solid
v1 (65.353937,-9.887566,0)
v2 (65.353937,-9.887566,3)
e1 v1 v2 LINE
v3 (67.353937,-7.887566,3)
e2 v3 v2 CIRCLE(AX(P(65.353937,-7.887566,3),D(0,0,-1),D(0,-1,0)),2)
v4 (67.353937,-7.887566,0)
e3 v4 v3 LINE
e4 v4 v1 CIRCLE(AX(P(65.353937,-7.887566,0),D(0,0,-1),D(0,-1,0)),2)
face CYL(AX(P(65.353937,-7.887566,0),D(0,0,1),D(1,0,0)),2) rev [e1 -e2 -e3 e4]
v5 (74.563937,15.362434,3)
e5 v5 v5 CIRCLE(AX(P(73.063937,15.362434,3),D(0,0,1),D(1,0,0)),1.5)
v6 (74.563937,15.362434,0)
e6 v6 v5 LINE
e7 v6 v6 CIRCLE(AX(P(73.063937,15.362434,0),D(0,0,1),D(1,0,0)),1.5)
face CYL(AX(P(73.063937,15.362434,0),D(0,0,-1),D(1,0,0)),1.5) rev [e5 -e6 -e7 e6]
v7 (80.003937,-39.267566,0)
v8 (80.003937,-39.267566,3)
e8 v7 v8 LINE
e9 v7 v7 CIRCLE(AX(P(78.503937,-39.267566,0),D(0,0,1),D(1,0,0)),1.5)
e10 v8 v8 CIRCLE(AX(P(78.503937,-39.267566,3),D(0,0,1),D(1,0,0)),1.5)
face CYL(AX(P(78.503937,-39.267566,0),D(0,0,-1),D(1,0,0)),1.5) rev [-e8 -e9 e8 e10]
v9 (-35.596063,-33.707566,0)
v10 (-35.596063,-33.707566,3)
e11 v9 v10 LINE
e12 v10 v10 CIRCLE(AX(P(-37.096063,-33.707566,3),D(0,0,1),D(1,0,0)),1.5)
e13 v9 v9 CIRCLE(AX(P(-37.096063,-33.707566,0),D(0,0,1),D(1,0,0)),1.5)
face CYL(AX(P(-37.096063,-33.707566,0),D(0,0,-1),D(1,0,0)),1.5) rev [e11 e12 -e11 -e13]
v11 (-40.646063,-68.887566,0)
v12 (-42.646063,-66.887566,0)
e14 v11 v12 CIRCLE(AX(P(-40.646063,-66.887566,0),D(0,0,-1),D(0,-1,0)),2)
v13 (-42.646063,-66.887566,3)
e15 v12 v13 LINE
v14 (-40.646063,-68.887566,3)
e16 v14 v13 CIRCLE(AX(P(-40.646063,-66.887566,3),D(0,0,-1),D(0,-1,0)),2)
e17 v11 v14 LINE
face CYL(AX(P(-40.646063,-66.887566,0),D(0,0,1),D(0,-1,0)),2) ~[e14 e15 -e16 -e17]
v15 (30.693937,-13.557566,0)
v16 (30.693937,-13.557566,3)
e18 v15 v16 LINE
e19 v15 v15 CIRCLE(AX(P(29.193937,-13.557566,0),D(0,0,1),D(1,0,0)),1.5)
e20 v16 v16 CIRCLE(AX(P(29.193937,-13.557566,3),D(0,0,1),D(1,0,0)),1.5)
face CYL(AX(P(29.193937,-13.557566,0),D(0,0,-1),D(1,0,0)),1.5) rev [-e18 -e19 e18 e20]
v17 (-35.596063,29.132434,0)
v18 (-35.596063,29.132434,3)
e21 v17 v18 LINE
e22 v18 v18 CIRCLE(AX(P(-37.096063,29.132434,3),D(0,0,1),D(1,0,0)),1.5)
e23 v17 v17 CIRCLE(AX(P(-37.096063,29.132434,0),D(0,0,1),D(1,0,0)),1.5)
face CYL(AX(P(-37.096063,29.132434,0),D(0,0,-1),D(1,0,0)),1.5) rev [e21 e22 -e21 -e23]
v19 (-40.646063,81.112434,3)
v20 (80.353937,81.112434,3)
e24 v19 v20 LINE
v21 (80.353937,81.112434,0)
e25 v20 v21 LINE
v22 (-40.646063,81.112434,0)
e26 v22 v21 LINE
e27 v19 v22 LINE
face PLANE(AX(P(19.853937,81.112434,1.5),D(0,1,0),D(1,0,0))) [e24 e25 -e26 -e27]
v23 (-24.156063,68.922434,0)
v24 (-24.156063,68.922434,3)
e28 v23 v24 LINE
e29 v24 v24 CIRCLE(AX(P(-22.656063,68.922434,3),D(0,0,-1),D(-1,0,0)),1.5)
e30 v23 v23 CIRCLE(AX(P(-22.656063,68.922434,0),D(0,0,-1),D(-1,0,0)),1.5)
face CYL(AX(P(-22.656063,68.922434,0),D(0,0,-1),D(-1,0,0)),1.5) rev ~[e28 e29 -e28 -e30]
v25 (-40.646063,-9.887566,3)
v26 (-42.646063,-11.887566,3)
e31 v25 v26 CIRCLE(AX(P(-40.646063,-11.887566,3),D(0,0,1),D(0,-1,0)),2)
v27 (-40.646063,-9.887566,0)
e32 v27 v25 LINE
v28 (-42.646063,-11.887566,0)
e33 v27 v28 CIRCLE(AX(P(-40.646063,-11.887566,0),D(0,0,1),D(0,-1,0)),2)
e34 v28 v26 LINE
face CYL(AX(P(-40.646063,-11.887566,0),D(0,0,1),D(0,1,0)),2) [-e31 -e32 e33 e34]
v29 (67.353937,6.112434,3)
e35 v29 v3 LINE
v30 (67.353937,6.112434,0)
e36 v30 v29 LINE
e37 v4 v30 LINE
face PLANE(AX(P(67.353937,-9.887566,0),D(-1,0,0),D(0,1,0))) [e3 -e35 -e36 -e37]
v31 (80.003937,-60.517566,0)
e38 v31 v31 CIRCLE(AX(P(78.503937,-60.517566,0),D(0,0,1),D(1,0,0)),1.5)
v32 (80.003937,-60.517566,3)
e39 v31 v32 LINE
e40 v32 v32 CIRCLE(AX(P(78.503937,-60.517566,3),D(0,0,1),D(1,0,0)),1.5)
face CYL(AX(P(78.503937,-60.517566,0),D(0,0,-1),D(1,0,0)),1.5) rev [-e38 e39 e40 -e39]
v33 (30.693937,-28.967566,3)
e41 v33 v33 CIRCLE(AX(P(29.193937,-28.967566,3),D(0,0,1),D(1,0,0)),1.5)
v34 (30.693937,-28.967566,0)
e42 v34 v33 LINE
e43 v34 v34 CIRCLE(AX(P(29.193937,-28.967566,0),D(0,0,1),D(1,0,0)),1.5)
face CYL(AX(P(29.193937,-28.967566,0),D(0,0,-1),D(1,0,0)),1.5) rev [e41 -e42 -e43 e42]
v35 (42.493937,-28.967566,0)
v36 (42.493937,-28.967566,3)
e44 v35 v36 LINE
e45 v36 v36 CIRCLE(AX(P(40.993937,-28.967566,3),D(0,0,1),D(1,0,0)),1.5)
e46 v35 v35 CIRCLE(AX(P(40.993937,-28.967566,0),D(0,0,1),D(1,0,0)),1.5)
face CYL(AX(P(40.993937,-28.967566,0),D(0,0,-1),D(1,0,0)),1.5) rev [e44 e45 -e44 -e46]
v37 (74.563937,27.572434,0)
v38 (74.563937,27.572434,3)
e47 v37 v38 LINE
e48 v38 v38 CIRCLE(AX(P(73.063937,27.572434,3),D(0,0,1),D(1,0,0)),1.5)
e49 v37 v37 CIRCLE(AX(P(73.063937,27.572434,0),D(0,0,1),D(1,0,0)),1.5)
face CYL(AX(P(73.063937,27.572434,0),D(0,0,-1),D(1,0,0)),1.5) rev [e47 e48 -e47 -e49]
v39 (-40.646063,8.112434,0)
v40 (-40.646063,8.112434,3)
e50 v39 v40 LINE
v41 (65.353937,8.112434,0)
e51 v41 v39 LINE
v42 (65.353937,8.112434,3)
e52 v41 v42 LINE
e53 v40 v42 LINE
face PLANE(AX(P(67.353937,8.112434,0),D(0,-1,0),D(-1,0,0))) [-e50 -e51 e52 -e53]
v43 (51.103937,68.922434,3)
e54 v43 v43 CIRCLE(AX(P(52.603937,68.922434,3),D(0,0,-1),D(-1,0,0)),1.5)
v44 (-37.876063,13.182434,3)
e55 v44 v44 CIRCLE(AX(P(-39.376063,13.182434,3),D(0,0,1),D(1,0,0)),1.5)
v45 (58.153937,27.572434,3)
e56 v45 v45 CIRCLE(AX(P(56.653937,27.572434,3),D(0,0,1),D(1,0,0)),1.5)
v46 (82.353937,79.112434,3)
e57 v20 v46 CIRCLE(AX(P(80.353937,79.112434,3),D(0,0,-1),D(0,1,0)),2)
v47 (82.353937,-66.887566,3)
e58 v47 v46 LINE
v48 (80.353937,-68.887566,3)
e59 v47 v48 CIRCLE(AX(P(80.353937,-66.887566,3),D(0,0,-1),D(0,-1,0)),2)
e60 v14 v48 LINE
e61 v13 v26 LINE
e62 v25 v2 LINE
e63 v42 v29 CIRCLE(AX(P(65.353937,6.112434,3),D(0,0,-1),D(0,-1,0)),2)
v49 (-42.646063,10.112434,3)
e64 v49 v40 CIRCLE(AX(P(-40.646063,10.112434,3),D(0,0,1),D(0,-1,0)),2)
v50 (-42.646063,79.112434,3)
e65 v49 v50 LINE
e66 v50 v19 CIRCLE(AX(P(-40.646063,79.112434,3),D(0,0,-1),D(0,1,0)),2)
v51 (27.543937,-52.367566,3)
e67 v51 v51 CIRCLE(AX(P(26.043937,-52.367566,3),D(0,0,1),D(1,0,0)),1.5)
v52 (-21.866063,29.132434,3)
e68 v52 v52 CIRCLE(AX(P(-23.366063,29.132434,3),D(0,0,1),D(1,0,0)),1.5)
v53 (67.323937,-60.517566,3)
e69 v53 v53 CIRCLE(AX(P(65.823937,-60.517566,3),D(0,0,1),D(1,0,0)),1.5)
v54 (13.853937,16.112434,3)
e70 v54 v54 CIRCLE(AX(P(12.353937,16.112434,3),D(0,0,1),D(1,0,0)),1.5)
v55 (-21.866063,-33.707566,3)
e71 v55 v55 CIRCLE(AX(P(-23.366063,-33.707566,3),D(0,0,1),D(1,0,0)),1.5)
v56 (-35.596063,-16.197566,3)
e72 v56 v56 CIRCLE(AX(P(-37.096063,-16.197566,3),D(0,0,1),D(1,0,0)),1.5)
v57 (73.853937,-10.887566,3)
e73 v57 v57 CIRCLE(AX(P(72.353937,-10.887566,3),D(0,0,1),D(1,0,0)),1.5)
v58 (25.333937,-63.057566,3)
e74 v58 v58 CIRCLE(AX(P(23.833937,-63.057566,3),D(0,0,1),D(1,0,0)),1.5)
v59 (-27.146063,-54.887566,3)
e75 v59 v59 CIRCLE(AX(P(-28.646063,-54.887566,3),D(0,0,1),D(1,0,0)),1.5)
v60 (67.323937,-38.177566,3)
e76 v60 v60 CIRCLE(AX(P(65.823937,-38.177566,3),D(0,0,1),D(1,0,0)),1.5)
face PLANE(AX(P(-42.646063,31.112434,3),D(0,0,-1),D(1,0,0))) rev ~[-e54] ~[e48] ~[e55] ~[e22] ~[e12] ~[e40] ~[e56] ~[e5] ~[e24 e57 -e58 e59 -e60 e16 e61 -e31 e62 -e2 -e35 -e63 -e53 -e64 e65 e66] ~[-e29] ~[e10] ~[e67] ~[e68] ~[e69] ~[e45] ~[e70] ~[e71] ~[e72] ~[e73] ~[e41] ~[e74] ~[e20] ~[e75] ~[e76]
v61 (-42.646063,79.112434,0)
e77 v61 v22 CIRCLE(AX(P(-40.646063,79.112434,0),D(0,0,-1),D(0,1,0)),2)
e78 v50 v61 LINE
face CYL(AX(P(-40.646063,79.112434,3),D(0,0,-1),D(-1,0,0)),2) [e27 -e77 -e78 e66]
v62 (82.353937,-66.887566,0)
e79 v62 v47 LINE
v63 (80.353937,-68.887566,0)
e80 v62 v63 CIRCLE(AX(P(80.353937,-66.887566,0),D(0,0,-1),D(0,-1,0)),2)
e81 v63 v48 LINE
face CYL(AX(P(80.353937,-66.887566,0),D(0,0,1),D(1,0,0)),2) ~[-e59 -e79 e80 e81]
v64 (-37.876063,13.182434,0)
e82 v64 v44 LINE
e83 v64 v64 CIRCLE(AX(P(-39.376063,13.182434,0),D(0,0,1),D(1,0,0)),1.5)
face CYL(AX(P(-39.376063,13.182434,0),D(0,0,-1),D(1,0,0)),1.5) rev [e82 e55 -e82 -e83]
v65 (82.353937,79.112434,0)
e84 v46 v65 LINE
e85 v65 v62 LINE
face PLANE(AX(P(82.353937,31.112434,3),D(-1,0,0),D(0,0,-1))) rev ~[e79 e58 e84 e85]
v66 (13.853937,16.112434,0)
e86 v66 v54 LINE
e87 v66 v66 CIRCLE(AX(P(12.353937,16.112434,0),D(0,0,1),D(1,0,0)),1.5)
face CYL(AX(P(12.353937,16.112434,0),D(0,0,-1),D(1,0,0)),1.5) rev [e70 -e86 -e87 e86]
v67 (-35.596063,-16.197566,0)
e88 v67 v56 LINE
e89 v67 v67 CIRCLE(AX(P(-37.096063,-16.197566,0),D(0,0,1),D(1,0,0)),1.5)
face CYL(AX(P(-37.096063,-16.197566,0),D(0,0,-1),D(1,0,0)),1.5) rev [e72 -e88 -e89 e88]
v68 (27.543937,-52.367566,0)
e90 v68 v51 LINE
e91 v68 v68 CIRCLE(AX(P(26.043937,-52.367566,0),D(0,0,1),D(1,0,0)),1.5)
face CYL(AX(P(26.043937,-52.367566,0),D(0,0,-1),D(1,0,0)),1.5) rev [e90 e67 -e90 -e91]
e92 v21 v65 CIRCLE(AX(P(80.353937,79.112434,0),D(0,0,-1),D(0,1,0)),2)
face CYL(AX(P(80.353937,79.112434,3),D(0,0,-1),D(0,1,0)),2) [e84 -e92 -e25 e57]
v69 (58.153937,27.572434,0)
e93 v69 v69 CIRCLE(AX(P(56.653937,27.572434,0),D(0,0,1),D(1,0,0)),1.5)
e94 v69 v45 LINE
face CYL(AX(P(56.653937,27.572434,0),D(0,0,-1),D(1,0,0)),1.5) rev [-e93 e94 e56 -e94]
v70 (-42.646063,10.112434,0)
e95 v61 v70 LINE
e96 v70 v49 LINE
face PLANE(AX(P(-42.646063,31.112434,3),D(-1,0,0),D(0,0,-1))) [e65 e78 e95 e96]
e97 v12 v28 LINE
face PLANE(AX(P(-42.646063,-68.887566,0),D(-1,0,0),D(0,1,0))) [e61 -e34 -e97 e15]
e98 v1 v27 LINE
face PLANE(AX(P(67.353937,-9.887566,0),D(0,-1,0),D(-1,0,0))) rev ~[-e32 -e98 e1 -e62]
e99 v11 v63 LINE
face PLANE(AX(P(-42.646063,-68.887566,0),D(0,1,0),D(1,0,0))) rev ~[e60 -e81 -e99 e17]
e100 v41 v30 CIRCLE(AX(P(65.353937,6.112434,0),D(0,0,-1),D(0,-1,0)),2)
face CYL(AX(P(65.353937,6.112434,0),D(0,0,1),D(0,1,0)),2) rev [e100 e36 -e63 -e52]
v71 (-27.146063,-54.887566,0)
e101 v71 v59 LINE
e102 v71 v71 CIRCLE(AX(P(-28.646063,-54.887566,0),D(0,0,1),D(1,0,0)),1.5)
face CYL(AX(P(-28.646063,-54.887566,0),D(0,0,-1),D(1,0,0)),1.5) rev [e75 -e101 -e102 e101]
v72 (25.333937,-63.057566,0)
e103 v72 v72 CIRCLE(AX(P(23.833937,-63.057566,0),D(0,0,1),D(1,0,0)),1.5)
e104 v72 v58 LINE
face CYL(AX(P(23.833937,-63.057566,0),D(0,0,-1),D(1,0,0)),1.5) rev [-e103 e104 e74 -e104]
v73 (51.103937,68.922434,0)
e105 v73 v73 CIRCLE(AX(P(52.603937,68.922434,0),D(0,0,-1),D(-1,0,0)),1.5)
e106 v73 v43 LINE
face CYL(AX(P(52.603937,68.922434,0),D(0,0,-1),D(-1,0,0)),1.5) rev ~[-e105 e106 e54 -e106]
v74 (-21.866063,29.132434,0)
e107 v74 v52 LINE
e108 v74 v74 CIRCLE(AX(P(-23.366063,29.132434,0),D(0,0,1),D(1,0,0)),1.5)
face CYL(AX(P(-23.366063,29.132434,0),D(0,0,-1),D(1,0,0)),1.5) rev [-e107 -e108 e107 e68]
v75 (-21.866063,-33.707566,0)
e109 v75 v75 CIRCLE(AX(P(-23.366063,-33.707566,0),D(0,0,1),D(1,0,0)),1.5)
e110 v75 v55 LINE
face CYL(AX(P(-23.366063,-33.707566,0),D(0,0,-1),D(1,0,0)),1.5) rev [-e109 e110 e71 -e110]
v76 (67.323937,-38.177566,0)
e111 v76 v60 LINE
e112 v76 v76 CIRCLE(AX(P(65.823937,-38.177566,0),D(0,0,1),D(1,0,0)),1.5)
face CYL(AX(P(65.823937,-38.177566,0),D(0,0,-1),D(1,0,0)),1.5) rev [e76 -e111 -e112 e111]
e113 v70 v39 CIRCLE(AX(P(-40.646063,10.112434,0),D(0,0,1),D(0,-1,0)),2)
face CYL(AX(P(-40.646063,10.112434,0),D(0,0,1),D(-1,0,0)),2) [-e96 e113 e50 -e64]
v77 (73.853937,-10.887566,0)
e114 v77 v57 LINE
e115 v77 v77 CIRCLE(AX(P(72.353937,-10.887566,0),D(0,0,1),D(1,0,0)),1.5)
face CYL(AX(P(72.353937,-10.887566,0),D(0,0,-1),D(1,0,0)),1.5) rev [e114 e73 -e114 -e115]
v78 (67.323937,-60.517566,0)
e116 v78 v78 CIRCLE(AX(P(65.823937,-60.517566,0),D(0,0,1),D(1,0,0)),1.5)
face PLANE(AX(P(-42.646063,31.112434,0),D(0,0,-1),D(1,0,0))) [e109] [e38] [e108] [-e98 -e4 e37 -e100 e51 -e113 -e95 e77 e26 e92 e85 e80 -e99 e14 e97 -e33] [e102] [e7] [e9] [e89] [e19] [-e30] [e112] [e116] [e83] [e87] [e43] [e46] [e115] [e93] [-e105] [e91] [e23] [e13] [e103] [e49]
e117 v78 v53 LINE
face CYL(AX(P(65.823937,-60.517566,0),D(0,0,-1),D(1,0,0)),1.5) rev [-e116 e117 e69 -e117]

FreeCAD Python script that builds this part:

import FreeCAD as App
import Part
import Sketcher


def edges_at(feature, points):
    """Names of the edges that pass closest to the given points."""
    edges = feature.Shape.Edges
    near = lambda p: min(range(len(edges)), key=lambda i: edges[i].distToShape(Part.Vertex(*p))[0])
    return sorted({f"Edge{near(p) + 1}" for p in points})


def add_polygon(sketch, points):
    """Adds a closed chain of lines whose ends are joined by coincident constraints."""
    first, n = sketch.GeometryCount, len(points)
    for a, b in zip(points, points[1:] + points[:1]):
        sketch.addGeometry(Part.LineSegment(App.Vector(*a, 0), App.Vector(*b, 0)), False)
    for i in range(n):
        sketch.addConstraint(Sketcher.Constraint("Coincident", first + i, 2, first + (i + 1) % n, 1))

doc = App.newDocument("Part")
body = doc.addObject("PartDesign::Body", "Body")

# Sketch on XY plane
sketch1 = body.newObject("Sketcher::SketchObject", "Sketch")
sketch1.AttachmentSupport = (doc.getObject("XY_Plane"), [""])
sketch1.MapMode = "FlatFace"
add_polygon(sketch1, [(-42.6, 31.1), (-42.6, -68.9), (82.4, -68.9), (82.4, 31.1)])  # lines 0-3
sketch1.addGeometry(Part.Circle(App.Vector(-28.6, -54.9, 0), App.Vector(0, 0, 1), 1.5), False)  # 4
sketch1.addGeometry(Part.Circle(App.Vector(-37.1, -33.7, 0), App.Vector(0, 0, 1), 1.5), False)  # 5
sketch1.addGeometry(Part.Circle(App.Vector(-23.4, -33.7, 0), App.Vector(0, 0, 1), 1.5), False)  # 6
sketch1.addGeometry(Part.Circle(App.Vector(23.8, -63.1, 0), App.Vector(0, 0, 1), 1.5), False)  # 7
sketch1.addGeometry(Part.Circle(App.Vector(26, -52.4, 0), App.Vector(0, 0, 1), 1.5), False)  # 8
sketch1.addGeometry(Part.Circle(App.Vector(65.8, -60.5, 0), App.Vector(0, 0, 1), 1.5), False)  # 9
sketch1.addGeometry(Part.Circle(App.Vector(78.5, -60.5, 0), App.Vector(0, 0, 1), 1.5), False)  # 10
sketch1.addGeometry(Part.Circle(App.Vector(29.2, -29, 0), App.Vector(0, 0, 1), 1.5), False)  # 11
sketch1.addGeometry(Part.Circle(App.Vector(41, -29, 0), App.Vector(0, 0, 1), 1.5), False)  # 12
sketch1.addGeometry(Part.Circle(App.Vector(65.8, -38.2, 0), App.Vector(0, 0, 1), 1.5), False)  # 13
sketch1.addGeometry(Part.Circle(App.Vector(78.5, -39.3, 0), App.Vector(0, 0, 1), 1.5), False)  # 14
sketch1.addGeometry(Part.Circle(App.Vector(-37.1, -16.2, 0), App.Vector(0, 0, 1), 1.5), False)  # 15
sketch1.addGeometry(Part.Circle(App.Vector(-39.4, 13.2, 0), App.Vector(0, 0, 1), 1.5), False)  # 16
sketch1.addGeometry(Part.Circle(App.Vector(-37.1, 29.1, 0), App.Vector(0, 0, 1), 1.5), False)  # 17
sketch1.addGeometry(Part.Circle(App.Vector(-23.4, 29.1, 0), App.Vector(0, 0, 1), 1.5), False)  # 18
sketch1.addGeometry(Part.Circle(App.Vector(12.4, 16.1, 0), App.Vector(0, 0, 1), 1.5), False)  # 19
sketch1.addGeometry(Part.Circle(App.Vector(29.2, -13.6, 0), App.Vector(0, 0, 1), 1.5), False)  # 20
sketch1.addGeometry(Part.Circle(App.Vector(72.4, -10.9, 0), App.Vector(0, 0, 1), 1.5), False)  # 21
sketch1.addGeometry(Part.Circle(App.Vector(73.1, 15.4, 0), App.Vector(0, 0, 1), 1.5), False)  # 22
sketch1.addGeometry(Part.Circle(App.Vector(56.7, 27.6, 0), App.Vector(0, 0, 1), 1.5), False)  # 23
sketch1.addGeometry(Part.Circle(App.Vector(73.1, 27.6, 0), App.Vector(0, 0, 1), 1.5), False)  # 24
sketch1.addConstraint(Sketcher.Constraint("Vertical", 0))
sketch1.addConstraint(Sketcher.Constraint("Horizontal", 1))
sketch1.addConstraint(Sketcher.Constraint("Vertical", 2))
sketch1.addConstraint(Sketcher.Constraint("Horizontal", 3))
sketch1.addConstraint(Sketcher.Constraint("Equal", 4, 5))
sketch1.addConstraint(Sketcher.Constraint("Equal", 5, 6))
sketch1.addConstraint(Sketcher.Constraint("Equal", 6, 7))
sketch1.addConstraint(Sketcher.Constraint("Equal", 7, 8))
sketch1.addConstraint(Sketcher.Constraint("Equal", 8, 9))
sketch1.addConstraint(Sketcher.Constraint("Equal", 9, 10))
sketch1.addConstraint(Sketcher.Constraint("Equal", 10, 11))
sketch1.addConstraint(Sketcher.Constraint("Equal", 11, 12))
sketch1.addConstraint(Sketcher.Constraint("Equal", 12, 13))
sketch1.addConstraint(Sketcher.Constraint("Equal", 13, 14))
sketch1.addConstraint(Sketcher.Constraint("Equal", 14, 15))
sketch1.addConstraint(Sketcher.Constraint("Equal", 15, 16))
sketch1.addConstraint(Sketcher.Constraint("Equal", 16, 17))
sketch1.addConstraint(Sketcher.Constraint("Equal", 17, 18))
sketch1.addConstraint(Sketcher.Constraint("Equal", 18, 19))
sketch1.addConstraint(Sketcher.Constraint("Equal", 19, 20))
sketch1.addConstraint(Sketcher.Constraint("Equal", 20, 21))
sketch1.addConstraint(Sketcher.Constraint("Equal", 21, 22))
sketch1.addConstraint(Sketcher.Constraint("Equal", 22, 23))
sketch1.addConstraint(Sketcher.Constraint("Equal", 23, 24))
sketch1.addConstraint(Sketcher.Constraint("Horizontal", 5, 3, 6, 3))
sketch1.addConstraint(Sketcher.Constraint("Horizontal", 9, 3, 10, 3))
sketch1.addConstraint(Sketcher.Constraint("Horizontal", 11, 3, 12, 3))
sketch1.addConstraint(Sketcher.Constraint("Horizontal", 17, 3, 18, 3))
sketch1.addConstraint(Sketcher.Constraint("Horizontal", 23, 3, 24, 3))
sketch1.addConstraint(Sketcher.Constraint("Vertical", 9, 3, 13, 3))
sketch1.addConstraint(Sketcher.Constraint("Vertical", 10, 3, 14, 3))
sketch1.addConstraint(Sketcher.Constraint("Vertical", 5, 3, 15, 3))
sketch1.addConstraint(Sketcher.Constraint("Vertical", 15, 3, 17, 3))
sketch1.addConstraint(Sketcher.Constraint("Vertical", 6, 3, 18, 3))
sketch1.addConstraint(Sketcher.Constraint("Vertical", 11, 3, 20, 3))
sketch1.addConstraint(Sketcher.Constraint("Vertical", 22, 3, 24, 3))
sketch1.addConstraint(Sketcher.Constraint("Diameter", 4, 3.0))
sketch1.addConstraint(Sketcher.Constraint("DistanceX", 1, 1, 1, 2, 125.0))
sketch1.addConstraint(Sketcher.Constraint("DistanceY", 0, 2, 0, 1, 100.0))
sketch1.addConstraint(Sketcher.Constraint("DistanceX", 0, 2, 4, 3, 14.0))
sketch1.addConstraint(Sketcher.Constraint("DistanceY", 0, 2, 4, 3, 14.0))
sketch1.addConstraint(Sketcher.Constraint("DistanceX", 21, 3, 2, 2, 10.0))
sketch1.addConstraint(Sketcher.Constraint("DistanceY", 21, 3, 2, 2, 42.0))
sketch1.addConstraint(Sketcher.Constraint("DistanceX", 3, 2, 19, 3, 55.0))
sketch1.addConstraint(Sketcher.Constraint("DistanceY", 19, 3, 3, 2, 15.0))
sketch1.addConstraint(Sketcher.Constraint("DistanceX", 6, 3, 7, 3, 47.2))
sketch1.addConstraint(Sketcher.Constraint("DistanceY", 8, 3, 11, 3, 23.4))
sketch1.addConstraint(Sketcher.Constraint("DistanceX", 11, 3, 12, 3, 11.8))
sketch1.addConstraint(Sketcher.Constraint("DistanceY", 14, 3, 12, 3, 10.3))
sketch1.addConstraint(Sketcher.Constraint("DistanceX", 23, 3, 21, 3, 15.7))
sketch1.addConstraint(Sketcher.Constraint("DistanceX", 5, 3, 4, 3, 8.45))
sketch1.addConstraint(Sketcher.Constraint("DistanceY", 4, 3, 5, 3, 21.18))
sketch1.addConstraint(Sketcher.Constraint("DistanceX", 5, 3, 6, 3, 13.73))
sketch1.addConstraint(Sketcher.Constraint("DistanceY", 7, 3, 4, 3, 8.17))
sketch1.addConstraint(Sketcher.Constraint("DistanceX", 7, 3, 8, 3, 2.21))
sketch1.addConstraint(Sketcher.Constraint("DistanceY", 7, 3, 8, 3, 10.69))
sketch1.addConstraint(Sketcher.Constraint("DistanceX", 8, 3, 9, 3, 39.78))
sketch1.addConstraint(Sketcher.Constraint("DistanceY", 9, 3, 8, 3, 8.15))
sketch1.addConstraint(Sketcher.Constraint("DistanceX", 9, 3, 10, 3, 12.68))
sketch1.addConstraint(Sketcher.Constraint("DistanceX", 8, 3, 11, 3, 3.15))
sketch1.addConstraint(Sketcher.Constraint("DistanceY", 9, 3, 13, 3, 22.34))
sketch1.addConstraint(Sketcher.Constraint("DistanceY", 5, 3, 15, 3, 17.51))
sketch1.addConstraint(Sketcher.Constraint("DistanceX", 16, 3, 15, 3, 2.28))
sketch1.addConstraint(Sketcher.Constraint("DistanceY", 15, 3, 16, 3, 29.38))
sketch1.addConstraint(Sketcher.Constraint("DistanceY", 16, 3, 17, 3, 15.95))
sketch1.addConstraint(Sketcher.Constraint("DistanceY", 11, 3, 20, 3, 15.41))
sketch1.addConstraint(Sketcher.Constraint("DistanceX", 21, 3, 22, 3, 0.71))
sketch1.addConstraint(Sketcher.Constraint("DistanceY", 21, 3, 22, 3, 26.25))
sketch1.addConstraint(Sketcher.Constraint("DistanceY", 22, 3, 23, 3, 12.21))
sketch1.addConstraint(Sketcher.Constraint("DistanceX", 4, 3, -1, 1, 28.646063))
sketch1.addConstraint(Sketcher.Constraint("DistanceY", 4, 3, -1, 1, 54.887566))
pad1 = body.newObject("PartDesign::Pad", "Pad")
pad1.Profile = sketch1
pad1.Length = 3

# Sketch on XY plane
sketch2 = body.newObject("Sketcher::SketchObject", "Sketch001")
sketch2.AttachmentSupport = (doc.getObject("XY_Plane"), [""])
sketch2.MapMode = "FlatFace"
add_polygon(sketch2, [(67, 8), (67, -10), (-43, -10), (-43, 8)])  # lines 0-3
sketch2.addConstraint(Sketcher.Constraint("Vertical", 0))
sketch2.addConstraint(Sketcher.Constraint("Horizontal", 1))
sketch2.addConstraint(Sketcher.Constraint("Vertical", 2))
sketch2.addConstraint(Sketcher.Constraint("Horizontal", 3))
sketch2.addConstraint(Sketcher.Constraint("DistanceX", 1, 2, 1, 1, 110.0))
sketch2.addConstraint(Sketcher.Constraint("DistanceY", 0, 2, 0, 1, 18.0))
sketch2.addConstraint(Sketcher.Constraint("DistanceX", -1, 1, 0, 2, 67.353937))
sketch2.addConstraint(Sketcher.Constraint("DistanceY", 0, 2, -1, 1, 9.887566))
pocket1 = body.newObject("PartDesign::Pocket", "Pocket")
pocket1.Profile = sketch2
pocket1.Type = "ThroughAll"
pocket1.Reversed = True

# Sketch on XZ plane
sketch3 = body.newObject("Sketcher::SketchObject", "Sketch002")
sketch3.AttachmentSupport = (doc.getObject("XZ_Plane"), [""])
sketch3.MapMode = "FlatFace"
sketch3.AttachmentOffset = App.Placement(App.Vector(0, 0, -31.112434), App.Rotation())
add_polygon(sketch3, [(-42.6, 0), (-42.6, 3), (82.4, 3), (82.4, 0)])  # lines 0-3
sketch3.addConstraint(Sketcher.Constraint("Vertical", 0))
sketch3.addConstraint(Sketcher.Constraint("Horizontal", 1))
sketch3.addConstraint(Sketcher.Constraint("Vertical", 2))
sketch3.addConstraint(Sketcher.Constraint("Horizontal", 3))
sketch3.addConstraint(Sketcher.Constraint("PointOnObject", 2, 2, -1))
sketch3.addConstraint(Sketcher.Constraint("DistanceX", 1, 1, 1, 2, 125.0))
sketch3.addConstraint(Sketcher.Constraint("DistanceY", 0, 1, 0, 2, 3.0))
sketch3.addConstraint(Sketcher.Constraint("DistanceX", 0, 2, -1, 1, 42.646063))
pad2 = body.newObject("PartDesign::Pad", "Pad001")
pad2.Profile = sketch3
pad2.Length = 50
pad2.Reversed = True

# Sketch on XY plane
sketch4 = body.newObject("Sketcher::SketchObject", "Sketch003")
sketch4.AttachmentSupport = (doc.getObject("XY_Plane"), [""])
sketch4.MapMode = "FlatFace"
sketch4.addGeometry(Part.Circle(App.Vector(52.6, 68.9, 0), App.Vector(0, 0, 1), 1.5), False)
sketch4.addGeometry(Part.Circle(App.Vector(-22.7, 68.9, 0), App.Vector(0, 0, 1), 1.5), False)
sketch4.addConstraint(Sketcher.Constraint("Equal", 0, 1))
sketch4.addConstraint(Sketcher.Constraint("Horizontal", 0, 3, 1, 3))
sketch4.addConstraint(Sketcher.Constraint("Diameter", 0, 3.0))
sketch4.addConstraint(Sketcher.Constraint("DistanceX", 1, 3, 0, 3, 75.26))
sketch4.addConstraint(Sketcher.Constraint("DistanceX", -1, 1, 0, 3, 52.603937))
sketch4.addConstraint(Sketcher.Constraint("DistanceY", -1, 1, 0, 3, 68.922434))
pocket2 = body.newObject("PartDesign::Pocket", "Pocket001")
pocket2.Profile = sketch4
pocket2.Type = "ThroughAll"
pocket2.Reversed = True
doc.recompute()

fillet = body.newObject("PartDesign::Fillet", "Fillet")
fillet.Base = (pocket2, edges_at(pocket2, [
    (-42.646, 8.112, 1.5),
    (-42.646, -9.888, 1.5),
    (67.354, -9.888, 1.5),
    (67.354, 8.112, 1.5),
    (-42.646, 81.112, 1.5),
    (82.354, 81.112, 1.5),
    (82.354, -68.888, 1.5),
    (-42.646, -68.888, 1.5),
]))
fillet.Radius = 2

doc.recompute()
